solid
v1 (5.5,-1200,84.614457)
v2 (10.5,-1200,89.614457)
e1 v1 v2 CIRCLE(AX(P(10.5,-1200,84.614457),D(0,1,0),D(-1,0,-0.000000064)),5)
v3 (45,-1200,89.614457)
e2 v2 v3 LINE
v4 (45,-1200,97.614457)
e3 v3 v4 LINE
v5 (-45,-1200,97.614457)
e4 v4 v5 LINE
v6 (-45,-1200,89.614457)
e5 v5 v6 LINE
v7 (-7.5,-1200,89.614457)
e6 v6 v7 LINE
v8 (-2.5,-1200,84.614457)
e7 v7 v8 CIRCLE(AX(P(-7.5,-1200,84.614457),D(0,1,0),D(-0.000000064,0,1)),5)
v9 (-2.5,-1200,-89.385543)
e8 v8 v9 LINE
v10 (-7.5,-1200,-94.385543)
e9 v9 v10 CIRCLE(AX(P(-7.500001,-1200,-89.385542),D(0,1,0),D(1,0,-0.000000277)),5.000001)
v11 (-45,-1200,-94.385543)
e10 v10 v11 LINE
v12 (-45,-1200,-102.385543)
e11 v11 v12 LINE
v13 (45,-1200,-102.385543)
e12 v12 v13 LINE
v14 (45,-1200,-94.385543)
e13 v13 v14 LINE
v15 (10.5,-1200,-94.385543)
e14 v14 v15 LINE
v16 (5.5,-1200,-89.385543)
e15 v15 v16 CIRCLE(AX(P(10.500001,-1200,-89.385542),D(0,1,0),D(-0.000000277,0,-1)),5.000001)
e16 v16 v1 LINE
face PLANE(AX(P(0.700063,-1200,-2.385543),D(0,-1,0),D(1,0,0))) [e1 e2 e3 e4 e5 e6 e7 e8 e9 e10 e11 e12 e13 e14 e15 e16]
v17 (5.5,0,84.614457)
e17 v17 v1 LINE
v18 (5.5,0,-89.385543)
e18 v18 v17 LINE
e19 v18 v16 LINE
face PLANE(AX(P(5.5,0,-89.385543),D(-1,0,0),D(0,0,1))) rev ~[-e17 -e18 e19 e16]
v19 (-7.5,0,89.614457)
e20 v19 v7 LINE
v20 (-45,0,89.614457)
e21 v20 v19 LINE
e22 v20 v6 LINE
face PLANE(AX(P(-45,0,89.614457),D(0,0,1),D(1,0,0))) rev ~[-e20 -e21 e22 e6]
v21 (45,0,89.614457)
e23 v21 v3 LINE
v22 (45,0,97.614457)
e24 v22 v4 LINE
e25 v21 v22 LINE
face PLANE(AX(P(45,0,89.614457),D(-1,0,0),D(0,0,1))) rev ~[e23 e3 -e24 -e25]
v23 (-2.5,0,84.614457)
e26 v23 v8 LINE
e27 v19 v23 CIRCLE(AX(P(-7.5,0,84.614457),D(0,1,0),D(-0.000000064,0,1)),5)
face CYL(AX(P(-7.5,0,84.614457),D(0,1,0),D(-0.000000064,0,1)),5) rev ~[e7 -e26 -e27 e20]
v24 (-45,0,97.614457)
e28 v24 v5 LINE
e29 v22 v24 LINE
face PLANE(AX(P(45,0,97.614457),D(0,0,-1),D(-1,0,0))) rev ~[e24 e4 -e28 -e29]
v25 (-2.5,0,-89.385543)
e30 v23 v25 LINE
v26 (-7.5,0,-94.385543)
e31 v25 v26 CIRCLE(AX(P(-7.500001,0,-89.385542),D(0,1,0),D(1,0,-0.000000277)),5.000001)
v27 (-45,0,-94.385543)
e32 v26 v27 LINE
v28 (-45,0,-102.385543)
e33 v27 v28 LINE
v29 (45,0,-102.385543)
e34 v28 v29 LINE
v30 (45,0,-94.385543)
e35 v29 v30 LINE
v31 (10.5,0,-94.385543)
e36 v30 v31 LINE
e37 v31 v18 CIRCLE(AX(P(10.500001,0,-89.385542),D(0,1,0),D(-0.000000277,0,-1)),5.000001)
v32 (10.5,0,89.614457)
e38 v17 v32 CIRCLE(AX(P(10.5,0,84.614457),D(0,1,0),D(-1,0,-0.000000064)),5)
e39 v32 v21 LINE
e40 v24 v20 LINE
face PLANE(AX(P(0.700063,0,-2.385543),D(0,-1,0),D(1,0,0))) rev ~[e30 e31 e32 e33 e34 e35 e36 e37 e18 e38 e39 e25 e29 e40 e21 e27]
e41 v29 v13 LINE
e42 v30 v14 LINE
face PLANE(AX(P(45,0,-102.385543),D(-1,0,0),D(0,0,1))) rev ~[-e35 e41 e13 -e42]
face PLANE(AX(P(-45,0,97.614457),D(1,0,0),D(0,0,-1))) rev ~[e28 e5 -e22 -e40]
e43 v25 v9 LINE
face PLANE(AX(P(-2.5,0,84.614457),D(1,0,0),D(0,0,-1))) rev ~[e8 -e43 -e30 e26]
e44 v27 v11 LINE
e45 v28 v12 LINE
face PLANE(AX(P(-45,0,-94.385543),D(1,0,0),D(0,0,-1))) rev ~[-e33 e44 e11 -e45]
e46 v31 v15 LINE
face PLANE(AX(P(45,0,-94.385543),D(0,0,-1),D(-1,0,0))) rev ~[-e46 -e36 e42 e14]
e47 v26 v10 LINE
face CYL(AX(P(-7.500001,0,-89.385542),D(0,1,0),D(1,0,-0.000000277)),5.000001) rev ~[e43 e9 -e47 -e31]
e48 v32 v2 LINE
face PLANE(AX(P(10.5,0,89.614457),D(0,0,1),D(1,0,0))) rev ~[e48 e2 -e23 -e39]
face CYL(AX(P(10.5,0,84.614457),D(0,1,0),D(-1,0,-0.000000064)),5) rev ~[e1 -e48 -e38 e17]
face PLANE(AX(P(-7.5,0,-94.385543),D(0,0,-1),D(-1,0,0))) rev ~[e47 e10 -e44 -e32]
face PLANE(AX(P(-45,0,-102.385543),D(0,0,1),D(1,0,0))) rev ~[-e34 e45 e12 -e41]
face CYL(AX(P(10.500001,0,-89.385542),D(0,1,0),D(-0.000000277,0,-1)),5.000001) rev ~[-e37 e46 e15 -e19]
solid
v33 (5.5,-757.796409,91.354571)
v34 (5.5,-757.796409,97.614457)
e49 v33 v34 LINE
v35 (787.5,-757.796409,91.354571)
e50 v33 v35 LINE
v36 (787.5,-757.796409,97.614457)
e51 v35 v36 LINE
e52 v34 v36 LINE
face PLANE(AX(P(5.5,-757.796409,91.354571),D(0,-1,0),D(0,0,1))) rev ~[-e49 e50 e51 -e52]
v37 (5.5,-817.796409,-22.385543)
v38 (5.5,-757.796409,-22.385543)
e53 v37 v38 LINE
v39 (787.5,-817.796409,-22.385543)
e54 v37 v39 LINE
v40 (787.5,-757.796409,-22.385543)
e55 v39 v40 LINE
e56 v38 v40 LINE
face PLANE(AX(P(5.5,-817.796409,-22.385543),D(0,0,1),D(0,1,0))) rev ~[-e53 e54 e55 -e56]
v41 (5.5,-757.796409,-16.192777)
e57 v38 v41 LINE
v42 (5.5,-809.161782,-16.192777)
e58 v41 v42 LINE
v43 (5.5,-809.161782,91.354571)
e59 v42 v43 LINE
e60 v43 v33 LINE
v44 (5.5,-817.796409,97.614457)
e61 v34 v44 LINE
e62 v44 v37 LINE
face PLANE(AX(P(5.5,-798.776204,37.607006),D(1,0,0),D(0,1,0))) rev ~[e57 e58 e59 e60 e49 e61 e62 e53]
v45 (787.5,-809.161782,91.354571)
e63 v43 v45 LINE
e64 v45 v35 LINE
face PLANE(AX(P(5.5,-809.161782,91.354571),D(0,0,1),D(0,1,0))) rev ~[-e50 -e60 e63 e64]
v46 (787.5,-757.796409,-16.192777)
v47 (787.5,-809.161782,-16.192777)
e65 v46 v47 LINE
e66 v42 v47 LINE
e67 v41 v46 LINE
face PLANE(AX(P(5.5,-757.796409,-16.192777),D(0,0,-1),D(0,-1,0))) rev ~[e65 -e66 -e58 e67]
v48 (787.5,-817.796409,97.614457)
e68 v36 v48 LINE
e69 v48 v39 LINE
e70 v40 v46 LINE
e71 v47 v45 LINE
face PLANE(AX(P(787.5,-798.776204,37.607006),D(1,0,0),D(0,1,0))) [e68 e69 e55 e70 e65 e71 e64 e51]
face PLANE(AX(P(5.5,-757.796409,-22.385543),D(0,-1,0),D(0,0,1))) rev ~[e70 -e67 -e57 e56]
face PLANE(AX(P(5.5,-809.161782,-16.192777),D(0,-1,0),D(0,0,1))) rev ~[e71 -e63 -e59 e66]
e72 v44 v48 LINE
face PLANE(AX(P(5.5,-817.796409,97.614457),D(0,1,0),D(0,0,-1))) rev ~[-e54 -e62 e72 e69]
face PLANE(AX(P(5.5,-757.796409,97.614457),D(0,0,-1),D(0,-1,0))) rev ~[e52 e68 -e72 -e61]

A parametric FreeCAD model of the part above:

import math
import FreeCAD as App
import Part
import Sketcher

V = App.Vector


def add_polygon(sketch, points):
    """Adds a closed chain of lines whose ends are joined by coincident constraints."""
    first, n = sketch.GeometryCount, len(points)
    for a, b in zip(points, points[1:] + points[:1]):
        sketch.addGeometry(Part.LineSegment(App.Vector(*a, 0), App.Vector(*b, 0)), False)
    for i in range(n):
        sketch.addConstraint(Sketcher.Constraint("Coincident", first + i, 2, first + (i + 1) % n, 1))

doc = App.newDocument("Part")
params = doc.addObject("Spreadsheet::Sheet", "Params")
for row, (alias, value) in enumerate([
    ("sketch1_radius", "5 mm"),
    ("sketch1_width", "90 mm"),
    ("sketch1_height", "8 mm"),
    ("sketch1_height2", "174 mm"),
    ("sketch1_width2", "37.5 mm"),
    ("pad1_length", "1200 mm"),
    ("sketch2_width", "60 mm"),
    ("sketch2_height", "120 mm"),
    ("pad2_length", "782 mm"),
], start=1):
    params.set(f"A{row}", alias)
    params.set(f"B{row}", "=" + value)
    params.setAlias(f"B{row}", alias)

body = doc.addObject("PartDesign::Body", "Body")

sketch1 = body.newObject("Sketcher::SketchObject", "Sketch")
sketch1.AttachmentSupport = (doc.getObject("XZ_Plane"), [""])
sketch1.MapMode = "FlatFace"
sketch1.addGeometry([
    Part.LineSegment(V(45, 97.6, 0), V(-45, 97.6, 0)),
    Part.LineSegment(V(-45, 97.6, 0), V(-45, 89.6, 0)),
    Part.LineSegment(V(-45, 89.6, 0), V(-7.5, 89.6, 0)),
    Part.ArcOfCircle(Part.Circle(V(-7.5, 84.6, 0), V(0, 0, 1), 5), math.radians(0), math.radians(90)),
    Part.LineSegment(V(-2.5, 84.6, 0), V(-2.5, -89.4, 0)),
    Part.ArcOfCircle(Part.Circle(V(-7.5, -89.4, 0), V(0, 0, 1), 5), math.radians(-90), math.radians(0)),
    Part.LineSegment(V(-7.5, -94.4, 0), V(-45, -94.4, 0)),
    Part.LineSegment(V(-45, -94.4, 0), V(-45, -102.4, 0)),
    Part.LineSegment(V(-45, -102.4, 0), V(45, -102.4, 0)),
    Part.LineSegment(V(45, -102.4, 0), V(45, -94.4, 0)),
    Part.LineSegment(V(45, -94.4, 0), V(10.5, -94.4, 0)),
    Part.ArcOfCircle(Part.Circle(V(10.5, -89.4, 0), V(0, 0, 1), 5), math.radians(-180), math.radians(-90)),
    Part.LineSegment(V(5.5, -89.4, 0), V(5.5, 84.6, 0)),
    Part.ArcOfCircle(Part.Circle(V(10.5, 84.6, 0), V(0, 0, 1), 5), math.radians(90), math.radians(180)),
    Part.LineSegment(V(10.5, 89.6, 0), V(45, 89.6, 0)),
    Part.LineSegment(V(45, 89.6, 0), V(45, 97.6, 0)),
], False)
sketch1.addConstraint([
    Sketcher.Constraint("Coincident", 0, 2, 1, 1),
    Sketcher.Constraint("Coincident", 1, 2, 2, 1),
    Sketcher.Constraint("Tangent", 2, 2, 3, 2),
    Sketcher.Constraint("Tangent", 3, 1, 4, 1),
    Sketcher.Constraint("Tangent", 4, 2, 5, 2),
    Sketcher.Constraint("Tangent", 5, 1, 6, 1),
    Sketcher.Constraint("Coincident", 6, 2, 7, 1),
    Sketcher.Constraint("Coincident", 7, 2, 8, 1),
    Sketcher.Constraint("Coincident", 8, 2, 9, 1),
    Sketcher.Constraint("Coincident", 9, 2, 10, 1),
    Sketcher.Constraint("Tangent", 10, 2, 11, 2),
    Sketcher.Constraint("Tangent", 11, 1, 12, 1),
    Sketcher.Constraint("Tangent", 12, 2, 13, 2),
    Sketcher.Constraint("Tangent", 13, 1, 14, 1),
    Sketcher.Constraint("Coincident", 14, 2, 15, 1),
    Sketcher.Constraint("Coincident", 15, 2, 0, 1),
    Sketcher.Constraint("Horizontal", 0),
    Sketcher.Constraint("Vertical", 1),
    Sketcher.Constraint("Horizontal", 2),
    Sketcher.Constraint("Vertical", 4),
    Sketcher.Constraint("Horizontal", 6),
    Sketcher.Constraint("Vertical", 7),
    Sketcher.Constraint("Horizontal", 8),
    Sketcher.Constraint("Vertical", 9),
    Sketcher.Constraint("Horizontal", 10),
    Sketcher.Constraint("Vertical", 12),
    Sketcher.Constraint("Horizontal", 14),
    Sketcher.Constraint("Vertical", 15),
    Sketcher.Constraint("Equal", 3, 5),
    Sketcher.Constraint("Equal", 5, 11),
    Sketcher.Constraint("Equal", 11, 13),
    Sketcher.Constraint("Symmetric", 6, 2, 9, 2, -2),
    Sketcher.Constraint("Symmetric", 1, 2, 14, 2, -2),
    Sketcher.Constraint("Vertical", 1, 2, 6, 2),
    Sketcher.Constraint("Equal", 1, 7),
    Sketcher.Constraint("Radius", 3, 5.0),
    Sketcher.Constraint("DistanceX", 0, 2, 0, 1, 90.0),
    Sketcher.Constraint("DistanceY", 1, 2, 1, 1, 8.0),
    Sketcher.Constraint("DistanceY", 4, 2, 4, 1, 174.0),
    Sketcher.Constraint("DistanceX", 2, 1, 2, 2, 37.5),
    Sketcher.Constraint("DistanceX", 10, 2, 10, 1, 34.5),
    Sketcher.Constraint("DistanceY", 5, 3, -1, 1, 89.385542),
])
sketch1.setExpression("Constraints[35]", "Params.sketch1_radius")
sketch1.setExpression("Constraints[36]", "Params.sketch1_width")
sketch1.setExpression("Constraints[37]", "Params.sketch1_height")
sketch1.setExpression("Constraints[38]", "Params.sketch1_height2")
sketch1.setExpression("Constraints[39]", "Params.sketch1_width2")
pad1 = body.newObject("PartDesign::Pad", "Pad")
pad1.Profile = sketch1
pad1.setExpression("Length", "Params.pad1_length")
body2 = doc.addObject("PartDesign::Body", "Body001")

sketch2 = body2.newObject("Sketcher::SketchObject", "Sketch001")
sketch2.AttachmentSupport = (doc.getObject("YZ_Plane001"), [""])
sketch2.MapMode = "FlatFace"
sketch2.AttachmentOffset = App.Placement(V(0, 0, 5.5), App.Rotation())
add_polygon(sketch2, [(-758, 98), (-818, 98), (-818, -22), (-758, -22), (-758, -16), (-809, -16), (-809, 91), (-758, 91)])
sketch2.addConstraint([
    Sketcher.Constraint("Horizontal", 0),
    Sketcher.Constraint("Vertical", 1),
    Sketcher.Constraint("Horizontal", 2),
    Sketcher.Constraint("Vertical", 3),
    Sketcher.Constraint("Horizontal", 4),
    Sketcher.Constraint("Vertical", 5),
    Sketcher.Constraint("Horizontal", 6),
    Sketcher.Constraint("Vertical", 7),
    Sketcher.Constraint("Vertical", 3, 2, 6, 2),
    Sketcher.Constraint("DistanceX", 0, 2, 0, 1, 60.0),
    Sketcher.Constraint("DistanceY", 1, 2, 1, 1, 120.0),
    Sketcher.Constraint("DistanceY", 5, 1, 5, 2, 107.547348),
    Sketcher.Constraint("DistanceX", 4, 2, 4, 1, 51.365373),
    Sketcher.Constraint("DistanceY", 3, 1, 3, 2, 6.192766),
    Sketcher.Constraint("DistanceX", 0, 2, -1, 1, 817.796409),
    Sketcher.Constraint("DistanceY", -1, 1, 5, 2, 91.354571),
])
sketch2.setExpression("Constraints[17]", "Params.sketch2_width")
sketch2.setExpression("Constraints[18]", "Params.sketch2_height")
pad2 = body2.newObject("PartDesign::Pad", "Pad001")
pad2.Profile = sketch2
pad2.setExpression("Length", "Params.pad2_length")

doc.recompute()
